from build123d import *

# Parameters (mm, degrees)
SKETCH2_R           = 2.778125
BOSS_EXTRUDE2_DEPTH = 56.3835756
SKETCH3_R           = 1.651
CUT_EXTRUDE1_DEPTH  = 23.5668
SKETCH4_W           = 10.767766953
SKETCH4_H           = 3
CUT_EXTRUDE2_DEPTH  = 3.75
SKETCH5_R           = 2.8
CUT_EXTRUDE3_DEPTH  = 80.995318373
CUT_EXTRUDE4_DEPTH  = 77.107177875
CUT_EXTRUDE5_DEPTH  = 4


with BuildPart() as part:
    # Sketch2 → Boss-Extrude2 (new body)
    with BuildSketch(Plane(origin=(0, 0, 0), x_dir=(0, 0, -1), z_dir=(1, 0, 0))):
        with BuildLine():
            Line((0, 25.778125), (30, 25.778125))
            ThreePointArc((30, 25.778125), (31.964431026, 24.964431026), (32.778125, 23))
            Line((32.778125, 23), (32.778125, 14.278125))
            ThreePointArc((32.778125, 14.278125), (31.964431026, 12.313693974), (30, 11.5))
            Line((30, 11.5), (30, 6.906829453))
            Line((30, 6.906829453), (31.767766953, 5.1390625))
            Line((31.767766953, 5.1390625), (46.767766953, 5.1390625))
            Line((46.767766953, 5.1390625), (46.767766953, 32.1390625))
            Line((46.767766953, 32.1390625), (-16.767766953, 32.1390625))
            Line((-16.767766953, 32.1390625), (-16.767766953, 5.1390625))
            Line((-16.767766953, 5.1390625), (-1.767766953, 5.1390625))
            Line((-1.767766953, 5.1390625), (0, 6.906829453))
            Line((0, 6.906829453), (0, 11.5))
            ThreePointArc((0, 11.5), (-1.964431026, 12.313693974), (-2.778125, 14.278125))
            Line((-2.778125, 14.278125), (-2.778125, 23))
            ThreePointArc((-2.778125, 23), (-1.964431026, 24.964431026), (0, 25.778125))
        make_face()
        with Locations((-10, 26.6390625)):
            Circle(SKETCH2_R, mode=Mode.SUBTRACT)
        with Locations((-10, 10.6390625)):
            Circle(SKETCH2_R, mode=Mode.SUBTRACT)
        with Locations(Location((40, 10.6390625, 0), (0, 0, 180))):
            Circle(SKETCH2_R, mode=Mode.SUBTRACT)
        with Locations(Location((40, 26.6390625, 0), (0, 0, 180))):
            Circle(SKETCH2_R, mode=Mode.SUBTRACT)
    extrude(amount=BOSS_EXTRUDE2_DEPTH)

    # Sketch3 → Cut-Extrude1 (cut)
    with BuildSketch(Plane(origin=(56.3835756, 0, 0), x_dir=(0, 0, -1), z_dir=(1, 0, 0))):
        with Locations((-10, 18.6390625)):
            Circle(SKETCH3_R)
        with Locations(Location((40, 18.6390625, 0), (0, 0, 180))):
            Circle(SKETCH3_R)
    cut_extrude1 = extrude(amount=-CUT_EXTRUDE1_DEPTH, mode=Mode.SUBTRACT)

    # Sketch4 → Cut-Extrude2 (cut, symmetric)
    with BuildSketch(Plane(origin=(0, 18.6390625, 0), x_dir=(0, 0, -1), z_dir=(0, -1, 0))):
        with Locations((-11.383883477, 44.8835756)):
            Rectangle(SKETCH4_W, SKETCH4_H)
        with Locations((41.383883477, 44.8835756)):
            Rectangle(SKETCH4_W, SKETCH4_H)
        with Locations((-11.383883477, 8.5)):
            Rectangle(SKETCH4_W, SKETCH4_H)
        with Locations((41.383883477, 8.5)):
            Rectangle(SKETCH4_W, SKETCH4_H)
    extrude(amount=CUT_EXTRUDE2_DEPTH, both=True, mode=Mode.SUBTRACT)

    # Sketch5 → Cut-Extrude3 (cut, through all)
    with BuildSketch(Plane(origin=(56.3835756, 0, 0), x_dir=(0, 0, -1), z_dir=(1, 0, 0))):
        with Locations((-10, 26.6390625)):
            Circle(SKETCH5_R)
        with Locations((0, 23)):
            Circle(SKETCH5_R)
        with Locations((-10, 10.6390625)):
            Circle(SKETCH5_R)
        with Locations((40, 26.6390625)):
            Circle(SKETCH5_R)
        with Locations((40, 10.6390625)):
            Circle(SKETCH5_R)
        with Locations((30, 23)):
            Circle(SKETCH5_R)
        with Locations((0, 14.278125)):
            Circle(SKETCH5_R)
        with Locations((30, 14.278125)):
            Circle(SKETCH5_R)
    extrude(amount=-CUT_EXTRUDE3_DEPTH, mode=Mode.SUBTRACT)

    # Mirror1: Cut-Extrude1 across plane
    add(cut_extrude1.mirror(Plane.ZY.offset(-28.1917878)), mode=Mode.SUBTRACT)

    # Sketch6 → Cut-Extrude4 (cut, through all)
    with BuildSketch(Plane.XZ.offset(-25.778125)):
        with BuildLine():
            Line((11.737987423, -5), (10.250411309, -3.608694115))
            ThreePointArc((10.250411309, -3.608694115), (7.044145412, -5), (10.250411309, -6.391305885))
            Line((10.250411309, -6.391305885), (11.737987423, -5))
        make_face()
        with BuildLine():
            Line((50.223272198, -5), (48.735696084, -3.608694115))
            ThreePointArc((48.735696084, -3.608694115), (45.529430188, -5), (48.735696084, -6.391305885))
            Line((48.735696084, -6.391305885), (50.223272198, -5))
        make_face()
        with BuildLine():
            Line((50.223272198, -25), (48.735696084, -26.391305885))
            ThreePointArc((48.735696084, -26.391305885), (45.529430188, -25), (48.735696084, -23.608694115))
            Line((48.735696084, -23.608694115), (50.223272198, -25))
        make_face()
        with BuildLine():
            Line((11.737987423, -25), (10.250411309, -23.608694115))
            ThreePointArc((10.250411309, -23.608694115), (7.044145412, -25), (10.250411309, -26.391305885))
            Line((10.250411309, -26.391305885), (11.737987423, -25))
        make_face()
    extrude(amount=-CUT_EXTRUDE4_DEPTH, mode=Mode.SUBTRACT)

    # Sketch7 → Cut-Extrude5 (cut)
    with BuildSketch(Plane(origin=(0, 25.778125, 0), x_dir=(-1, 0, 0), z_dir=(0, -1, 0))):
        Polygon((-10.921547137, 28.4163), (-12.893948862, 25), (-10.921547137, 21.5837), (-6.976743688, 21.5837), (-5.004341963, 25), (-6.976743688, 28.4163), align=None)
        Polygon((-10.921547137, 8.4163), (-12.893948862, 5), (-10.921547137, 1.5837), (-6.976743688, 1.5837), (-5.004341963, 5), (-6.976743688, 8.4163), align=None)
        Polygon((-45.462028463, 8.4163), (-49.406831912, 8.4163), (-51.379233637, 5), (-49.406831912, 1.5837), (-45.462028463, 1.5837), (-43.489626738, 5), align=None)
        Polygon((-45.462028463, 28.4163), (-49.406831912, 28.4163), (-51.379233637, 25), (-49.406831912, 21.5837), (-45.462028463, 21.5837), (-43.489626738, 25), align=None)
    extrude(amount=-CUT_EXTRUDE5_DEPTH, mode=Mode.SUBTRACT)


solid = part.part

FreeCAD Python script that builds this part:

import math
import FreeCAD as App
import Part
import Sketcher

V = App.Vector
Q = App.Units.Quantity

doc = App.newDocument("Part")
body = doc.addObject("PartDesign::Body", "Body")

# Sketch on YZ plane
sketch1 = body.newObject("Sketcher::SketchObject", "Sketch")
sketch1.AttachmentSupport = (doc.getObject("YZ_Plane"), [""])
sketch1.MapMode = "FlatFace"
sketch1.addGeometry(Part.LineSegment(V(25.778125, 0, 0), V(25.778125, -30, 0)), False)
sketch1.addGeometry(Part.ArcOfCircle(Part.Circle(V(23, -30, 0), V(0, 0, 1), 2.778125), math.radians(-90), math.radians(0)), False)
sketch1.addGeometry(Part.LineSegment(V(23, -32.778125, 0), V(14.278125, -32.778125, 0)), False)
sketch1.addGeometry(Part.ArcOfCircle(Part.Circle(V(14.278125, -30, 0), V(0, 0, 1), 2.778125), math.radians(-180), math.radians(-90)), False)
sketch1.addGeometry(Part.LineSegment(V(11.5, -30, 0), V(6.906829, -30, 0)), False)
sketch1.addGeometry(Part.LineSegment(V(6.906829, -30, 0), V(5.139062, -31.767767, 0)), False)
sketch1.addGeometry(Part.LineSegment(V(5.139062, -31.767767, 0), V(5.139062, -46.767767, 0)), False)
sketch1.addGeometry(Part.LineSegment(V(5.139062, -46.767767, 0), V(32.139063, -46.767767, 0)), False)
sketch1.addGeometry(Part.LineSegment(V(32.139063, -46.767767, 0), V(32.139063, 16.767767, 0)), False)
sketch1.addGeometry(Part.LineSegment(V(32.139063, 16.767767, 0), V(5.139062, 16.767767, 0)), False)
sketch1.addGeometry(Part.LineSegment(V(5.139062, 16.767767, 0), V(5.139062, 1.767767, 0)), False)
sketch1.addGeometry(Part.LineSegment(V(5.139062, 1.767767, 0), V(6.906829, 0, 0)), False)
sketch1.addGeometry(Part.LineSegment(V(6.906829, 0, 0), V(11.5, 0, 0)), False)
sketch1.addGeometry(Part.ArcOfCircle(Part.Circle(V(14.278125, 0, 0), V(0, 0, 1), 2.778125), math.radians(90), math.radians(180)), False)
sketch1.addGeometry(Part.LineSegment(V(14.278125, 2.778125, 0), V(23, 2.778125, 0)), False)
sketch1.addGeometry(Part.ArcOfCircle(Part.Circle(V(23, 0, 0), V(0, 0, 1), 2.778125), math.radians(0), math.radians(90)), False)
sketch1.addGeometry(Part.Circle(V(10.639062, 10, 0), V(0, 0, 1), 2.778125), False)
sketch1.addGeometry(Part.Circle(V(10.639062, -40, 0), V(0, 0, 1), 2.778125), False)
sketch1.addGeometry(Part.Circle(V(26.639063, 10, 0), V(0, 0, 1), 2.778125), False)
sketch1.addGeometry(Part.Circle(V(26.639063, -40, 0), V(0, 0, 1), 2.778125), False)
sketch1.addConstraint(Sketcher.Constraint("Tangent", 0, 2, 1, 2))
sketch1.addConstraint(Sketcher.Constraint("Tangent", 1, 1, 2, 1))
sketch1.addConstraint(Sketcher.Constraint("Tangent", 2, 2, 3, 2))
sketch1.addConstraint(Sketcher.Constraint("Coincident", 3, 1, 4, 1))
sketch1.addConstraint(Sketcher.Constraint("Coincident", 4, 2, 5, 1))
sketch1.addConstraint(Sketcher.Constraint("Coincident", 5, 2, 6, 1))
sketch1.addConstraint(Sketcher.Constraint("Coincident", 6, 2, 7, 1))
sketch1.addConstraint(Sketcher.Constraint("Coincident", 7, 2, 8, 1))
sketch1.addConstraint(Sketcher.Constraint("Coincident", 8, 2, 9, 1))
sketch1.addConstraint(Sketcher.Constraint("Coincident", 9, 2, 10, 1))
sketch1.addConstraint(Sketcher.Constraint("Coincident", 10, 2, 11, 1))
sketch1.addConstraint(Sketcher.Constraint("Coincident", 11, 2, 12, 1))
sketch1.addConstraint(Sketcher.Constraint("Coincident", 12, 2, 13, 2))
sketch1.addConstraint(Sketcher.Constraint("Tangent", 13, 1, 14, 1))
sketch1.addConstraint(Sketcher.Constraint("Tangent", 14, 2, 15, 2))
sketch1.addConstraint(Sketcher.Constraint("Tangent", 15, 1, 0, 1))
sketch1.addConstraint(Sketcher.Constraint("Vertical", 0))
sketch1.addConstraint(Sketcher.Constraint("Horizontal", 2))
sketch1.addConstraint(Sketcher.Constraint("Horizontal", 4))
sketch1.addConstraint(Sketcher.Constraint("Vertical", 6))
sketch1.addConstraint(Sketcher.Constraint("Horizontal", 7))
sketch1.addConstraint(Sketcher.Constraint("Vertical", 8))
sketch1.addConstraint(Sketcher.Constraint("Horizontal", 9))
sketch1.addConstraint(Sketcher.Constraint("Vertical", 10))
sketch1.addConstraint(Sketcher.Constraint("Horizontal", 12))
sketch1.addConstraint(Sketcher.Constraint("Horizontal", 14))
sketch1.addConstraint(Sketcher.Constraint("Equal", 1, 3))
sketch1.addConstraint(Sketcher.Constraint("Equal", 3, 13))
sketch1.addConstraint(Sketcher.Constraint("Equal", 13, 15))
sketch1.addConstraint(Sketcher.Constraint("Equal", 15, 16))
sketch1.addConstraint(Sketcher.Constraint("Equal", 16, 17))
sketch1.addConstraint(Sketcher.Constraint("Equal", 17, 18))
sketch1.addConstraint(Sketcher.Constraint("Equal", 18, 19))
sketch1.addConstraint(Sketcher.Constraint("PointOnObject", 13, 3, -1))
sketch1.addConstraint(Sketcher.Constraint("PointOnObject", 11, 2, -1))
sketch1.addConstraint(Sketcher.Constraint("Perpendicular", 5, 11))
sketch1.addConstraint(Sketcher.Constraint("Horizontal", 16, 3, 18, 3))
sketch1.addConstraint(Sketcher.Constraint("Horizontal", 17, 3, 19, 3))
sketch1.addConstraint(Sketcher.Constraint("Horizontal", 0, 2, 3, 1))
sketch1.addConstraint(Sketcher.Constraint("Vertical", 3, 3, 13, 3))
sketch1.addConstraint(Sketcher.Constraint("Vertical", 16, 3, 17, 3))
sketch1.addConstraint(Sketcher.Constraint("Vertical", 18, 3, 19, 3))
sketch1.addConstraint(Sketcher.Constraint("Vertical", 6, 2, 9, 2))
sketch1.addConstraint(Sketcher.Constraint("Vertical", 4, 2, 11, 2))
sketch1.addConstraint(Sketcher.Constraint("Equal", 6, 10))
sketch1.addConstraint(Sketcher.Constraint("Equal", 5, 11))
sketch1.addConstraint(Sketcher.Constraint("DistanceX", 7, 1, 7, 2, Q("27 mm")))
sketch1.addConstraint(Sketcher.Constraint("DistanceY", 0, 2, 0, 1, Q("30 mm")))
sketch1.addConstraint(Sketcher.Constraint("DistanceY", 6, 2, 6, 1, Q("15 mm")))
sketch1.addConstraint(Sketcher.Constraint("DistanceX", -1, 1, 1, 3, Q("23 mm")))
sketch1.addConstraint(Sketcher.Constraint("DistanceY", -1, 1, 16, 3, Q("10 mm")))
sketch1.addConstraint(Sketcher.Constraint("DistanceY", 17, 3, -1, 1, Q("40 mm")))
sketch1.addConstraint(Sketcher.Constraint("DistanceX", 16, 3, 18, 3, Q("16 mm")))
sketch1.addConstraint(Sketcher.Constraint("Distance", 5, Q("2.5 mm")))
sketch1.addConstraint(Sketcher.Constraint("DistanceX", -1, 1, 3, 1, Q("11.5 mm")))
sketch1.addConstraint(Sketcher.Constraint("DistanceX", 5, 2, 17, 3, Q("5.5 mm")))
sketch1.addConstraint(Sketcher.Constraint("Diameter", 16, Q("5.55625 mm")))
sketch1.addConstraint(Sketcher.Constraint("DistanceX", 4, 2, 4, 1, Q("4.593171 mm")))
pad1 = body.newObject("PartDesign::Pad", "Pad")
pad1.Profile = sketch1
pad1.Length = 56.383576

# Sketch on YZ plane
sketch2 = body.newObject("Sketcher::SketchObject", "Sketch001")
sketch2.AttachmentSupport = (doc.getObject("YZ_Plane"), [""])
sketch2.MapMode = "FlatFace"
sketch2.AttachmentOffset = App.Placement(V(0, 0, 56.383576), App.Rotation())
sketch2.addGeometry(Part.Circle(V(18.639063, 10, 0), V(0, 0, 1), 1.651), False)
sketch2.addGeometry(Part.Circle(V(18.639063, -40, 0), V(0, 0, 1), 1.651), False)
sketch2.addConstraint(Sketcher.Constraint("Equal", 0, 1))
sketch2.addConstraint(Sketcher.Constraint("Vertical", 0, 3, 1, 3))
sketch2.addConstraint(Sketcher.Constraint("Diameter", 0, Q("3.302 mm")))
sketch2.addConstraint(Sketcher.Constraint("DistanceY", -1, 1, 0, 3, Q("10 mm")))
sketch2.addConstraint(Sketcher.Constraint("DistanceY", 1, 3, -1, 1, Q("40 mm")))
sketch2.addConstraint(Sketcher.Constraint("DistanceX", -1, 1, 0, 3, Q("18.639063 mm")))
pocket1 = body.newObject("PartDesign::Pocket", "Pocket")
pocket1.Profile = sketch2
pocket1.Length = 23.5668

# Sketch on XZ plane
sketch3 = body.newObject("Sketcher::SketchObject", "Sketch002")
sketch3.AttachmentSupport = (doc.getObject("XZ_Plane"), [""])
sketch3.MapMode = "FlatFace"
sketch3.AttachmentOffset = App.Placement(V(0, 0, -18.639063), App.Rotation())
sketch3.addGeometry(Part.LineSegment(V(46.383576, 16.767767, 0), V(43.383576, 16.767767, 0)), False)
sketch3.addGeometry(Part.LineSegment(V(43.383576, 16.767767, 0), V(43.383576, 6, 0)), False)
sketch3.addGeometry(Part.LineSegment(V(43.383576, 6, 0), V(46.383576, 6, 0)), False)
sketch3.addGeometry(Part.LineSegment(V(46.383576, 6, 0), V(46.383576, 16.767767, 0)), False)
sketch3.addGeometry(Part.LineSegment(V(46.383576, -36, 0), V(43.383576, -36, 0)), False)
sketch3.addGeometry(Part.LineSegment(V(43.383576, -36, 0), V(43.383576, -46.767767, 0)), False)
sketch3.addGeometry(Part.LineSegment(V(43.383576, -46.767767, 0), V(46.383576, -46.767767, 0)), False)
sketch3.addGeometry(Part.LineSegment(V(46.383576, -46.767767, 0), V(46.383576, -36, 0)), False)
sketch3.addGeometry(Part.LineSegment(V(10, 16.767767, 0), V(7, 16.767767, 0)), False)
sketch3.addGeometry(Part.LineSegment(V(7, 16.767767, 0), V(7, 6, 0)), False)
sketch3.addGeometry(Part.LineSegment(V(7, 6, 0), V(10, 6, 0)), False)
sketch3.addGeometry(Part.LineSegment(V(10, 6, 0), V(10, 16.767767, 0)), False)
sketch3.addGeometry(Part.LineSegment(V(10, -36, 0), V(7, -36, 0)), False)
sketch3.addGeometry(Part.LineSegment(V(7, -36, 0), V(7, -46.767767, 0)), False)
sketch3.addGeometry(Part.LineSegment(V(7, -46.767767, 0), V(10, -46.767767, 0)), False)
sketch3.addGeometry(Part.LineSegment(V(10, -46.767767, 0), V(10, -36, 0)), False)
sketch3.addConstraint(Sketcher.Constraint("Coincident", 0, 2, 1, 1))
sketch3.addConstraint(Sketcher.Constraint("Coincident", 1, 2, 2, 1))
sketch3.addConstraint(Sketcher.Constraint("Coincident", 2, 2, 3, 1))
sketch3.addConstraint(Sketcher.Constraint("Coincident", 3, 2, 0, 1))
sketch3.addConstraint(Sketcher.Constraint("Coincident", 4, 2, 5, 1))
sketch3.addConstraint(Sketcher.Constraint("Coincident", 5, 2, 6, 1))
sketch3.addConstraint(Sketcher.Constraint("Coincident", 6, 2, 7, 1))
sketch3.addConstraint(Sketcher.Constraint("Coincident", 7, 2, 4, 1))
sketch3.addConstraint(Sketcher.Constraint("Coincident", 8, 2, 9, 1))
sketch3.addConstraint(Sketcher.Constraint("Coincident", 9, 2, 10, 1))
sketch3.addConstraint(Sketcher.Constraint("Coincident", 10, 2, 11, 1))
sketch3.addConstraint(Sketcher.Constraint("Coincident", 11, 2, 8, 1))
sketch3.addConstraint(Sketcher.Constraint("Coincident", 12, 2, 13, 1))
sketch3.addConstraint(Sketcher.Constraint("Coincident", 13, 2, 14, 1))
sketch3.addConstraint(Sketcher.Constraint("Coincident", 14, 2, 15, 1))
sketch3.addConstraint(Sketcher.Constraint("Coincident", 15, 2, 12, 1))
sketch3.addConstraint(Sketcher.Constraint("Horizontal", 0))
sketch3.addConstraint(Sketcher.Constraint("Vertical", 1))
sketch3.addConstraint(Sketcher.Constraint("Horizontal", 2))
sketch3.addConstraint(Sketcher.Constraint("Vertical", 3))
sketch3.addConstraint(Sketcher.Constraint("Horizontal", 4))
sketch3.addConstraint(Sketcher.Constraint("Vertical", 5))
sketch3.addConstraint(Sketcher.Constraint("Horizontal", 6))
sketch3.addConstraint(Sketcher.Constraint("Vertical", 7))
sketch3.addConstraint(Sketcher.Constraint("Horizontal", 8))
sketch3.addConstraint(Sketcher.Constraint("Vertical", 9))
sketch3.addConstraint(Sketcher.Constraint("Horizontal", 10))
sketch3.addConstraint(Sketcher.Constraint("Vertical", 11))
sketch3.addConstraint(Sketcher.Constraint("Horizontal", 12))
sketch3.addConstraint(Sketcher.Constraint("Vertical", 13))
sketch3.addConstraint(Sketcher.Constraint("Horizontal", 14))
sketch3.addConstraint(Sketcher.Constraint("Vertical", 15))
sketch3.addConstraint(Sketcher.Constraint("Horizontal", 3, 2, 8, 2))
sketch3.addConstraint(Sketcher.Constraint("Horizontal", 2, 2, 9, 2))
sketch3.addConstraint(Sketcher.Constraint("Horizontal", 7, 2, 12, 2))
sketch3.addConstraint(Sketcher.Constraint("Horizontal", 6, 2, 13, 2))
sketch3.addConstraint(Sketcher.Constraint("Vertical", 1, 2, 4, 2))
sketch3.addConstraint(Sketcher.Constraint("Vertical", 3, 2, 6, 2))
sketch3.addConstraint(Sketcher.Constraint("Vertical", 9, 2, 12, 2))
sketch3.addConstraint(Sketcher.Constraint("Vertical", 11, 2, 14, 2))
sketch3.addConstraint(Sketcher.Constraint("Equal", 6, 8))
sketch3.addConstraint(Sketcher.Constraint("Equal", 3, 5))
sketch3.addConstraint(Sketcher.Constraint("DistanceX", 0, 2, 0, 1, Q("3 mm")))
sketch3.addConstraint(Sketcher.Constraint("DistanceY", -1, 1, 1, 2, Q("6 mm")))
sketch3.addConstraint(Sketcher.Constraint("DistanceY", 4, 2, -1, 1, Q("36 mm")))
sketch3.addConstraint(Sketcher.Constraint("DistanceX", -1, 1, 8, 2, Q("7 mm")))
sketch3.addConstraint(Sketcher.Constraint("DistanceY", 1, 2, 1, 1, Q("10.767767 mm")))
sketch3.addConstraint(Sketcher.Constraint("DistanceX", -1, 1, 0, 2, Q("43.383576 mm")))
pocket2 = body.newObject("PartDesign::Pocket", "Pocket001")
pocket2.Profile = sketch3
pocket2.Length = 7.5
pocket2.Midplane = True

# Sketch on YZ plane
sketch4 = body.newObject("Sketcher::SketchObject", "Sketch003")
sketch4.AttachmentSupport = (doc.getObject("YZ_Plane"), [""])
sketch4.MapMode = "FlatFace"
sketch4.AttachmentOffset = App.Placement(V(0, 0, 56.383576), App.Rotation())
sketch4.addGeometry(Part.Circle(V(26.639063, 10, 0), V(0, 0, 1), 2.8), False)
sketch4.addGeometry(Part.Circle(V(23, 0, 0), V(0, 0, 1), 2.8), False)
sketch4.addGeometry(Part.Circle(V(10.639062, 10, 0), V(0, 0, 1), 2.8), False)
sketch4.addGeometry(Part.Circle(V(26.639063, -40, 0), V(0, 0, 1), 2.8), False)
sketch4.addGeometry(Part.Circle(V(10.639062, -40, 0), V(0, 0, 1), 2.8), False)
sketch4.addGeometry(Part.Circle(V(23, -30, 0), V(0, 0, 1), 2.8), False)
sketch4.addGeometry(Part.Circle(V(14.278125, 0, 0), V(0, 0, 1), 2.8), False)
sketch4.addGeometry(Part.Circle(V(14.278125, -30, 0), V(0, 0, 1), 2.8), False)
sketch4.addConstraint(Sketcher.Constraint("Equal", 0, 1))
sketch4.addConstraint(Sketcher.Constraint("Equal", 1, 2))
sketch4.addConstraint(Sketcher.Constraint("Equal", 2, 3))
sketch4.addConstraint(Sketcher.Constraint("Equal", 3, 4))
sketch4.addConstraint(Sketcher.Constraint("Equal", 4, 5))
sketch4.addConstraint(Sketcher.Constraint("Equal", 5, 6))
sketch4.addConstraint(Sketcher.Constraint("Equal", 6, 7))
sketch4.addConstraint(Sketcher.Constraint("PointOnObject", 1, 3, -1))
sketch4.addConstraint(Sketcher.Constraint("PointOnObject", 6, 3, -1))
sketch4.addConstraint(Sketcher.Constraint("Horizontal", 0, 3, 2, 3))
sketch4.addConstraint(Sketcher.Constraint("Horizontal", 3, 3, 4, 3))
sketch4.addConstraint(Sketcher.Constraint("Horizontal", 5, 3, 7, 3))
sketch4.addConstraint(Sketcher.Constraint("Vertical", 0, 3, 3, 3))
sketch4.addConstraint(Sketcher.Constraint("Vertical", 2, 3, 4, 3))
sketch4.addConstraint(Sketcher.Constraint("Vertical", 1, 3, 5, 3))
sketch4.addConstraint(Sketcher.Constraint("Vertical", 6, 3, 7, 3))
sketch4.addConstraint(Sketcher.Constraint("Diameter", 0, Q("5.6 mm")))
sketch4.addConstraint(Sketcher.Constraint("DistanceY", -1, 1, 0, 3, Q("10 mm")))
sketch4.addConstraint(Sketcher.Constraint("DistanceX", -1, 1, 1, 3, Q("23 mm")))
sketch4.addConstraint(Sketcher.Constraint("DistanceY", 3, 3, -1, 1, Q("40 mm")))
sketch4.addConstraint(Sketcher.Constraint("DistanceY", 5, 3, -1, 1, Q("30 mm")))
sketch4.addConstraint(Sketcher.Constraint("DistanceX", 2, 3, 0, 3, Q("16 mm")))
sketch4.addConstraint(Sketcher.Constraint("DistanceX", -1, 1, 0, 3, Q("26.639063 mm")))
sketch4.addConstraint(Sketcher.Constraint("DistanceX", -1, 1, 6, 3, Q("14.278125 mm")))
pocket3 = body.newObject("PartDesign::Pocket", "Pocket002")
pocket3.Profile = sketch4
pocket3.Type = "ThroughAll"
doc.recompute()

datumplane = body.newObject("PartDesign::Plane", "DatumPlane")
datumplane.AttachmentSupport = (doc.getObject("YZ_Plane"), [""])
datumplane.MapMode = "FlatFace"
datumplane.AttachmentOffset = App.Placement(V(0, 0, 28.191788), App.Rotation())
mirrored = body.newObject("PartDesign::Mirrored", "Mirrored")
mirrored.Originals = [pocket1]
mirrored.MirrorPlane = (datumplane, [""])
body.Tip = mirrored

# Sketch on XZ plane
sketch5 = body.newObject("Sketcher::SketchObject", "Sketch004")
sketch5.AttachmentSupport = (doc.getObject("XZ_Plane"), [""])
sketch5.MapMode = "FlatFace"
sketch5.AttachmentOffset = App.Placement(V(0, 0, -25.778125), App.Rotation())
sketch5.addGeometry(Part.LineSegment(V(11.737987, -5, 0), V(10.250411, -3.608694, 0)), False)
sketch5.addGeometry(Part.ArcOfCircle(Part.Circle(V(8.949145, -5, 0), V(0, 0, 1), 1.905), math.radians(46.915265), math.radians(313.084735)), False)
sketch5.addGeometry(Part.LineSegment(V(10.250411, -6.391306, 0), V(11.737987, -5, 0)), False)
sketch5.addGeometry(Part.LineSegment(V(50.223272, -5, 0), V(48.735696, -3.608694, 0)), False)
sketch5.addGeometry(Part.ArcOfCircle(Part.Circle(V(47.43443, -5, 0), V(0, 0, 1), 1.905), math.radians(46.915265), math.radians(313.084735)), False)
sketch5.addGeometry(Part.LineSegment(V(48.735696, -6.391306, 0), V(50.223272, -5, 0)), False)
sketch5.addGeometry(Part.LineSegment(V(48.735696, -26.391306, 0), V(50.223272, -25, 0)), False)
sketch5.addGeometry(Part.LineSegment(V(50.223272, -25, 0), V(48.735696, -23.608694, 0)), False)
sketch5.addGeometry(Part.ArcOfCircle(Part.Circle(V(47.43443, -25, 0), V(0, 0, 1), 1.905), math.radians(46.915265), math.radians(313.084735)), False)
sketch5.addGeometry(Part.LineSegment(V(11.737987, -25, 0), V(10.250411, -23.608694, 0)), False)
sketch5.addGeometry(Part.ArcOfCircle(Part.Circle(V(8.949145, -25, 0), V(0, 0, 1), 1.905), math.radians(46.915265), math.radians(313.084735)), False)
sketch5.addGeometry(Part.LineSegment(V(10.250411, -26.391306, 0), V(11.737987, -25, 0)), False)
sketch5.addConstraint(Sketcher.Constraint("Tangent", 0, 2, 1, 1))
sketch5.addConstraint(Sketcher.Constraint("Tangent", 1, 2, 2, 1))
sketch5.addConstraint(Sketcher.Constraint("Coincident", 2, 2, 0, 1))
sketch5.addConstraint(Sketcher.Constraint("Tangent", 3, 2, 4, 1))
sketch5.addConstraint(Sketcher.Constraint("Tangent", 4, 2, 5, 1))
sketch5.addConstraint(Sketcher.Constraint("Coincident", 5, 2, 3, 1))
sketch5.addConstraint(Sketcher.Constraint("Coincident", 6, 2, 7, 1))
sketch5.addConstraint(Sketcher.Constraint("Tangent", 7, 2, 8, 1))
sketch5.addConstraint(Sketcher.Constraint("Tangent", 8, 2, 6, 1))
sketch5.addConstraint(Sketcher.Constraint("Tangent", 9, 2, 10, 1))
sketch5.addConstraint(Sketcher.Constraint("Tangent", 10, 2, 11, 1))
sketch5.addConstraint(Sketcher.Constraint("Coincident", 11, 2, 9, 1))
sketch5.addConstraint(Sketcher.Constraint("Equal", 1, 4))
sketch5.addConstraint(Sketcher.Constraint("Equal", 4, 8))
sketch5.addConstraint(Sketcher.Constraint("Equal", 8, 10))
sketch5.addConstraint(Sketcher.Constraint("Parallel", 0, 3))
sketch5.addConstraint(Sketcher.Constraint("Parallel", 2, 5))
sketch5.addConstraint(Sketcher.Constraint("Parallel", 5, 6))
sketch5.addConstraint(Sketcher.Constraint("Parallel", 3, 7))
sketch5.addConstraint(Sketcher.Constraint("Parallel", 7, 9))
sketch5.addConstraint(Sketcher.Constraint("Parallel", 6, 11))
sketch5.addConstraint(Sketcher.Constraint("Horizontal", 1, 3, 4, 3))
sketch5.addConstraint(Sketcher.Constraint("Horizontal", 8, 3, 10, 3))
sketch5.addConstraint(Sketcher.Constraint("Horizontal", 4, 3, 2, 2))
sketch5.addConstraint(Sketcher.Constraint("Vertical", 4, 3, 8, 3))
sketch5.addConstraint(Sketcher.Constraint("Vertical", 1, 3, 10, 3))
sketch5.addConstraint(Sketcher.Constraint("DistanceY", 1, 3, -1, 1, Q("5 mm")))
sketch5.addConstraint(Sketcher.Constraint("DistanceY", 8, 3, -1, 1, Q("25 mm")))
sketch5.addConstraint(Sketcher.Constraint("Radius", 1, Q("1.905 mm")))
sketch5.addConstraint(Sketcher.Constraint("DistanceX", -1, 1, 4, 3, Q("47.43443 mm")))
sketch5.addConstraint(Sketcher.Constraint("DistanceX", -1, 1, 0, 2, Q("10.250411 mm")))
sketch5.addConstraint(Sketcher.Constraint("DistanceY", 1, 2, 0, 2, Q("2.782612 mm")))
pocket4 = body.newObject("PartDesign::Pocket", "Pocket003")
pocket4.Profile = sketch5
pocket4.Type = "ThroughAll"

# Sketch on XZ plane
sketch6 = body.newObject("Sketcher::SketchObject", "Sketch005")
sketch6.AttachmentSupport = (doc.getObject("XZ_Plane"), [""])
sketch6.MapMode = "FlatFace"
sketch6.AttachmentOffset = App.Placement(V(0, 0, -25.778125), App.Rotation())
sketch6.addGeometry(Part.LineSegment(V(10.921547, -28.4163, 0), V(12.893949, -25, 0)), False)
sketch6.addGeometry(Part.LineSegment(V(12.893949, -25, 0), V(10.921547, -21.5837, 0)), False)
sketch6.addGeometry(Part.LineSegment(V(10.921547, -21.5837, 0), V(6.976744, -21.5837, 0)), False)
sketch6.addGeometry(Part.LineSegment(V(6.976744, -21.5837, 0), V(5.004342, -25, 0)), False)
sketch6.addGeometry(Part.LineSegment(V(5.004342, -25, 0), V(6.976744, -28.4163, 0)), False)
sketch6.addGeometry(Part.LineSegment(V(6.976744, -28.4163, 0), V(10.921547, -28.4163, 0)), False)
sketch6.addGeometry(Part.LineSegment(V(10.921547, -8.4163, 0), V(12.893949, -5, 0)), False)
sketch6.addGeometry(Part.LineSegment(V(12.893949, -5, 0), V(10.921547, -1.5837, 0)), False)
sketch6.addGeometry(Part.LineSegment(V(10.921547, -1.5837, 0), V(6.976744, -1.5837, 0)), False)
sketch6.addGeometry(Part.LineSegment(V(6.976744, -1.5837, 0), V(5.004342, -5, 0)), False)
sketch6.addGeometry(Part.LineSegment(V(5.004342, -5, 0), V(6.976744, -8.4163, 0)), False)
sketch6.addGeometry(Part.LineSegment(V(6.976744, -8.4163, 0), V(10.921547, -8.4163, 0)), False)
sketch6.addGeometry(Part.LineSegment(V(45.462028, -8.4163, 0), V(49.406832, -8.4163, 0)), False)
sketch6.addGeometry(Part.LineSegment(V(49.406832, -8.4163, 0), V(51.379234, -5, 0)), False)
sketch6.addGeometry(Part.LineSegment(V(51.379234, -5, 0), V(49.406832, -1.5837, 0)), False)
sketch6.addGeometry(Part.LineSegment(V(49.406832, -1.5837, 0), V(45.462028, -1.5837, 0)), False)
sketch6.addGeometry(Part.LineSegment(V(45.462028, -1.5837, 0), V(43.489627, -5, 0)), False)
sketch6.addGeometry(Part.LineSegment(V(43.489627, -5, 0), V(45.462028, -8.4163, 0)), False)
sketch6.addGeometry(Part.LineSegment(V(45.462028, -28.4163, 0), V(49.406832, -28.4163, 0)), False)
sketch6.addGeometry(Part.LineSegment(V(49.406832, -28.4163, 0), V(51.379234, -25, 0)), False)
sketch6.addGeometry(Part.LineSegment(V(51.379234, -25, 0), V(49.406832, -21.5837, 0)), False)
sketch6.addGeometry(Part.LineSegment(V(49.406832, -21.5837, 0), V(45.462028, -21.5837, 0)), False)
sketch6.addGeometry(Part.LineSegment(V(45.462028, -21.5837, 0), V(43.489627, -25, 0)), False)
sketch6.addGeometry(Part.LineSegment(V(43.489627, -25, 0), V(45.462028, -28.4163, 0)), False)
sketch6.addConstraint(Sketcher.Constraint("Coincident", 0, 2, 1, 1))
sketch6.addConstraint(Sketcher.Constraint("Coincident", 1, 2, 2, 1))
sketch6.addConstraint(Sketcher.Constraint("Coincident", 2, 2, 3, 1))
sketch6.addConstraint(Sketcher.Constraint("Coincident", 3, 2, 4, 1))
sketch6.addConstraint(Sketcher.Constraint("Coincident", 4, 2, 5, 1))
sketch6.addConstraint(Sketcher.Constraint("Coincident", 5, 2, 0, 1))
sketch6.addConstraint(Sketcher.Constraint("Coincident", 6, 2, 7, 1))
sketch6.addConstraint(Sketcher.Constraint("Coincident", 7, 2, 8, 1))
sketch6.addConstraint(Sketcher.Constraint("Coincident", 8, 2, 9, 1))
sketch6.addConstraint(Sketcher.Constraint("Coincident", 9, 2, 10, 1))
sketch6.addConstraint(Sketcher.Constraint("Coincident", 10, 2, 11, 1))
sketch6.addConstraint(Sketcher.Constraint("Coincident", 11, 2, 6, 1))
sketch6.addConstraint(Sketcher.Constraint("Coincident", 12, 2, 13, 1))
sketch6.addConstraint(Sketcher.Constraint("Coincident", 13, 2, 14, 1))
sketch6.addConstraint(Sketcher.Constraint("Coincident", 14, 2, 15, 1))
sketch6.addConstraint(Sketcher.Constraint("Coincident", 15, 2, 16, 1))
sketch6.addConstraint(Sketcher.Constraint("Coincident", 16, 2, 17, 1))
sketch6.addConstraint(Sketcher.Constraint("Coincident", 17, 2, 12, 1))
sketch6.addConstraint(Sketcher.Constraint("Coincident", 18, 2, 19, 1))
sketch6.addConstraint(Sketcher.Constraint("Coincident", 19, 2, 20, 1))
sketch6.addConstraint(Sketcher.Constraint("Coincident", 20, 2, 21, 1))
sketch6.addConstraint(Sketcher.Constraint("Coincident", 21, 2, 22, 1))
sketch6.addConstraint(Sketcher.Constraint("Coincident", 22, 2, 23, 1))
sketch6.addConstraint(Sketcher.Constraint("Coincident", 23, 2, 18, 1))
sketch6.addConstraint(Sketcher.Constraint("Horizontal", 2))
sketch6.addConstraint(Sketcher.Constraint("Horizontal", 5))
sketch6.addConstraint(Sketcher.Constraint("Horizontal", 8))
sketch6.addConstraint(Sketcher.Constraint("Horizontal", 11))
sketch6.addConstraint(Sketcher.Constraint("Horizontal", 12))
sketch6.addConstraint(Sketcher.Constraint("Horizontal", 15))
sketch6.addConstraint(Sketcher.Constraint("Horizontal", 18))
sketch6.addConstraint(Sketcher.Constraint("Horizontal", 21))
sketch6.addConstraint(Sketcher.Constraint("Parallel", 0, 3))
sketch6.addConstraint(Sketcher.Constraint("Parallel", 1, 4))
sketch6.addConstraint(Sketcher.Constraint("Parallel", 3, 6))
sketch6.addConstraint(Sketcher.Constraint("Parallel", 4, 7))
sketch6.addConstraint(Sketcher.Constraint("Parallel", 6, 9))
sketch6.addConstraint(Sketcher.Constraint("Parallel", 7, 10))
sketch6.addConstraint(Sketcher.Constraint("Parallel", 9, 13))
sketch6.addConstraint(Sketcher.Constraint("Parallel", 10, 14))
sketch6.addConstraint(Sketcher.Constraint("Parallel", 13, 16))
sketch6.addConstraint(Sketcher.Constraint("Parallel", 14, 17))
sketch6.addConstraint(Sketcher.Constraint("Parallel", 16, 19))
sketch6.addConstraint(Sketcher.Constraint("Parallel", 17, 20))
sketch6.addConstraint(Sketcher.Constraint("Parallel", 19, 22))
sketch6.addConstraint(Sketcher.Constraint("Parallel", 20, 23))
sketch6.addConstraint(Sketcher.Constraint("Horizontal", 0, 2, 3, 2))
sketch6.addConstraint(Sketcher.Constraint("Horizontal", 6, 2, 9, 2))
sketch6.addConstraint(Sketcher.Constraint("Horizontal", 11, 2, 12, 2))
sketch6.addConstraint(Sketcher.Constraint("Horizontal", 9, 2, 13, 2))
sketch6.addConstraint(Sketcher.Constraint("Horizontal", 8, 2, 14, 2))
sketch6.addConstraint(Sketcher.Constraint("Horizontal", 13, 2, 16, 2))
sketch6.addConstraint(Sketcher.Constraint("Horizontal", 5, 2, 18, 2))
sketch6.addConstraint(Sketcher.Constraint("Horizontal", 3, 2, 19, 2))
sketch6.addConstraint(Sketcher.Constraint("Horizontal", 2, 2, 20, 2))
sketch6.addConstraint(Sketcher.Constraint("Horizontal", 19, 2, 22, 2))
sketch6.addConstraint(Sketcher.Constraint("Vertical", 2, 2, 4, 2))
sketch6.addConstraint(Sketcher.Constraint("Vertical", 1, 2, 5, 2))
sketch6.addConstraint(Sketcher.Constraint("Vertical", 0, 2, 6, 2))
sketch6.addConstraint(Sketcher.Constraint("Vertical", 5, 2, 7, 2))
sketch6.addConstraint(Sketcher.Constraint("Vertical", 4, 2, 8, 2))
sketch6.addConstraint(Sketcher.Constraint("Vertical", 8, 2, 10, 2))
sketch6.addConstraint(Sketcher.Constraint("Vertical", 14, 2, 18, 2))
sketch6.addConstraint(Sketcher.Constraint("Vertical", 17, 2, 21, 2))
sketch6.addConstraint(Sketcher.Constraint("Equal", 11, 12))
sketch6.addConstraint(Sketcher.Constraint("Angle", 0, Q("60 deg")))
sketch6.addConstraint(Sketcher.Constraint("DistanceY", 0, 2, -1, 1, Q("25 mm")))
sketch6.addConstraint(Sketcher.Constraint("DistanceY", 6, 2, -1, 1, Q("5 mm")))
sketch6.addConstraint(Sketcher.Constraint("DistanceY", 1, 2, -1, 1, Q("21.5837 mm")))
sketch6.addConstraint(Sketcher.Constraint("DistanceX", 2, 2, 2, 1, Q("3.944803 mm")))
sketch6.addConstraint(Sketcher.Constraint("DistanceX", -1, 1, 0, 2, Q("12.893949 mm")))
sketch6.addConstraint(Sketcher.Constraint("DistanceX", -1, 1, 12, 2, Q("49.406832 mm")))
pocket5 = body.newObject("PartDesign::Pocket", "Pocket004")
pocket5.Profile = sketch6
pocket5.Length = 4

doc.recompute()
